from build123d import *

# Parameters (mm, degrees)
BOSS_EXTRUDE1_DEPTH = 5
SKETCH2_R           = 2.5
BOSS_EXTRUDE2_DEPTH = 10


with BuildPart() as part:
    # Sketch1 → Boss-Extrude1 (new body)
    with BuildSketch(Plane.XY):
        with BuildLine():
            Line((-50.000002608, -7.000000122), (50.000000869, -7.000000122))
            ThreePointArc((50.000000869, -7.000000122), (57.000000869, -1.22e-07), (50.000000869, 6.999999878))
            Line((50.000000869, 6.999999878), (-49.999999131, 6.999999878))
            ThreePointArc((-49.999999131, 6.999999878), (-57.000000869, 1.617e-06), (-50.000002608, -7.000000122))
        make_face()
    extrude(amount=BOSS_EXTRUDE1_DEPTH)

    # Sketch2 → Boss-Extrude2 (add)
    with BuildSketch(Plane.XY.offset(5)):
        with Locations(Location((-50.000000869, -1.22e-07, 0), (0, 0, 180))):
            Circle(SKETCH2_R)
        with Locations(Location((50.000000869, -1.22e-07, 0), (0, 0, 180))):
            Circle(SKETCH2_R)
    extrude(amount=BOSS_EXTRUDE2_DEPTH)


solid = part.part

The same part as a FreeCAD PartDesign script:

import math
import FreeCAD as App
import Part
import Sketcher
from FreeCAD import Vector
Q = App.Units.Quantity

doc = App.newDocument("Part")
body = doc.addObject("PartDesign::Body", "Body")

sketch1 = doc.addObject("Sketcher::SketchObject", "Sketch")
body.addObject(sketch1)
sketch1.AttachmentSupport = (doc.XY_Plane, [""])
sketch1.MapMode = "FlatFace"
sketch1.addGeometry(Part.LineSegment(Vector(-50, -7, 0), Vector(50, -7, 0)), False)
sketch1.addGeometry(Part.ArcOfCircle(Part.Circle(Vector(50, 0, 0), Vector(0, 0, 1), 7), math.radians(-90), math.radians(90)), False)
sketch1.addGeometry(Part.LineSegment(Vector(50, 7, 0), Vector(-50, 7, 0)), False)
sketch1.addGeometry(Part.ArcOfCircle(Part.Circle(Vector(-50, 0, 0), Vector(0, 0, 1), 7), math.radians(90), math.radians(270)), False)
sketch1.addConstraint(Sketcher.Constraint("Tangent", 0, 2, 1, 1))
sketch1.addConstraint(Sketcher.Constraint("Tangent", 1, 2, 2, 1))
sketch1.addConstraint(Sketcher.Constraint("Tangent", 2, 2, 3, 1))
sketch1.addConstraint(Sketcher.Constraint("Tangent", 3, 2, 0, 1))
sketch1.addConstraint(Sketcher.Constraint("Horizontal", 0))
sketch1.addConstraint(Sketcher.Constraint("Horizontal", 2))
sketch1.addConstraint(Sketcher.Constraint("Symmetric", 1, 3, 3, 3, -1, 1))
sketch1.addConstraint(Sketcher.Constraint("Radius", 1, Q("7 mm")))
sketch1.addConstraint(Sketcher.Constraint("DistanceX", 2, 2, 2, 1, Q("100 mm")))
pad1 = doc.addObject("PartDesign::Pad", "Pad")
body.addObject(pad1)
pad1.Profile = sketch1
pad1.Length = 5

sketch2 = doc.addObject("Sketcher::SketchObject", "Sketch001")
body.addObject(sketch2)
sketch2.AttachmentSupport = (doc.XY_Plane, [""])
sketch2.MapMode = "FlatFace"
sketch2.AttachmentOffset = App.Placement(Vector(0, 0, 5), App.Rotation())
sketch2.addGeometry(Part.Circle(Vector(-50, 0, 0), Vector(0, 0, 1), 2.5), False)
sketch2.addGeometry(Part.Circle(Vector(50, 0, 0), Vector(0, 0, 1), 2.5), False)
sketch2.addConstraint(Sketcher.Constraint("Equal", 0, 1))
sketch2.addConstraint(Sketcher.Constraint("Symmetric", 0, 3, 1, 3, -1, 1))
sketch2.addConstraint(Sketcher.Constraint("PointOnObject", 0, 3, -1))
sketch2.addConstraint(Sketcher.Constraint("Diameter", 0, Q("5 mm")))
sketch2.addConstraint(Sketcher.Constraint("DistanceX", 0, 3, -1, 1, Q("50.000001 mm")))
pad2 = doc.addObject("PartDesign::Pad", "Pad001")
body.addObject(pad2)
pad2.Profile = sketch2
pad2.Length = 10

doc.recompute()
